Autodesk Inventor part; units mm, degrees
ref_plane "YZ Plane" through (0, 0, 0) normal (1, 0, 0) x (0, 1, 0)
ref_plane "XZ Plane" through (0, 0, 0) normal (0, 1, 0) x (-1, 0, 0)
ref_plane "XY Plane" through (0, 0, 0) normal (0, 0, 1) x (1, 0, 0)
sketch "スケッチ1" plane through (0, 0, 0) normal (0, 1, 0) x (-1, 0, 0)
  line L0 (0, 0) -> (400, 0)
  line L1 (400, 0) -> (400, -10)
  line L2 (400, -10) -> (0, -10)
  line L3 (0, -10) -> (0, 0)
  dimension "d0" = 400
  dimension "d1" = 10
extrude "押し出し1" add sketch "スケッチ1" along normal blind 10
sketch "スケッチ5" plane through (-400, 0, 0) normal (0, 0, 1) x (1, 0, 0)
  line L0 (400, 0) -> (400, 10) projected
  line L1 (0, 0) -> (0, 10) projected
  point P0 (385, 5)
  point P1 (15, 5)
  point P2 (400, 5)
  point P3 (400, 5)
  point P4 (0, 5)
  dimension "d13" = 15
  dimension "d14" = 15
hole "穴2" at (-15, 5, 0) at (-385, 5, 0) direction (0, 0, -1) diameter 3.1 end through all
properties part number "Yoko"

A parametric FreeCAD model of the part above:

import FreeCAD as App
import Part
import Sketcher

V = App.Vector


def add_polygon(sketch, points):
    """Adds a closed chain of lines whose ends are joined by coincident constraints."""
    first, n = sketch.GeometryCount, len(points)
    for a, b in zip(points, points[1:] + points[:1]):
        sketch.addGeometry(Part.LineSegment(App.Vector(*a, 0), App.Vector(*b, 0)), False)
    for i in range(n):
        sketch.addConstraint(Sketcher.Constraint("Coincident", first + i, 2, first + (i + 1) % n, 1))

doc = App.newDocument("Part")
body = doc.addObject("PartDesign::Body", "Body")

# Sketch on XZ plane
sketch1 = body.newObject("Sketcher::SketchObject", "Sketch")
sketch1.AttachmentSupport = (doc.getObject("XZ_Plane"), [""])
sketch1.MapMode = "FlatFace"
add_polygon(sketch1, [(-400, 0), (0, 0), (0, -10), (-400, -10)])  # lines 0-3
sketch1.addConstraint([
    Sketcher.Constraint("Horizontal", 0),
    Sketcher.Constraint("Vertical", 1),
    Sketcher.Constraint("Horizontal", 2),
    Sketcher.Constraint("Vertical", 3),
    Sketcher.Constraint("Coincident", 0, 2, -1, 1),
    Sketcher.Constraint("DistanceX", 0, 1, 0, 2, 400.0),
    Sketcher.Constraint("DistanceY", 1, 2, 1, 1, 10.0),
])
pad1 = body.newObject("PartDesign::Pad", "Pad")
pad1.Profile = sketch1
pad1.Length = 10
pad1.Reversed = True

# Sketch on XY plane
sketch2 = body.newObject("Sketcher::SketchObject", "Sketch001")
sketch2.AttachmentSupport = (doc.getObject("XY_Plane"), [""])
sketch2.MapMode = "FlatFace"
sketch2.addGeometry([
    Part.Circle(V(-15, 5, 0), V(0, 0, 1), 1.6),
    Part.Circle(V(-385, 5, 0), V(0, 0, 1), 1.6),
], False)
sketch2.addConstraint([
    Sketcher.Constraint("Equal", 0, 1),
    Sketcher.Constraint("Horizontal", 0, 3, 1, 3),
    Sketcher.Constraint("Diameter", 0, 3.1),
    Sketcher.Constraint("DistanceX", 0, 3, -1, 1, 15.0),
    Sketcher.Constraint("DistanceY", -1, 1, 0, 3, 5.0),
    Sketcher.Constraint("DistanceX", 1, 3, -1, 1, 385.0),
])
doc.recompute()
hole = body.newObject("PartDesign::Hole", "Hole")
hole.Profile = sketch2
hole.ThreadType = "None"
hole.Diameter = 3.1
hole.DepthType = "ThroughAll"

doc.recompute()
